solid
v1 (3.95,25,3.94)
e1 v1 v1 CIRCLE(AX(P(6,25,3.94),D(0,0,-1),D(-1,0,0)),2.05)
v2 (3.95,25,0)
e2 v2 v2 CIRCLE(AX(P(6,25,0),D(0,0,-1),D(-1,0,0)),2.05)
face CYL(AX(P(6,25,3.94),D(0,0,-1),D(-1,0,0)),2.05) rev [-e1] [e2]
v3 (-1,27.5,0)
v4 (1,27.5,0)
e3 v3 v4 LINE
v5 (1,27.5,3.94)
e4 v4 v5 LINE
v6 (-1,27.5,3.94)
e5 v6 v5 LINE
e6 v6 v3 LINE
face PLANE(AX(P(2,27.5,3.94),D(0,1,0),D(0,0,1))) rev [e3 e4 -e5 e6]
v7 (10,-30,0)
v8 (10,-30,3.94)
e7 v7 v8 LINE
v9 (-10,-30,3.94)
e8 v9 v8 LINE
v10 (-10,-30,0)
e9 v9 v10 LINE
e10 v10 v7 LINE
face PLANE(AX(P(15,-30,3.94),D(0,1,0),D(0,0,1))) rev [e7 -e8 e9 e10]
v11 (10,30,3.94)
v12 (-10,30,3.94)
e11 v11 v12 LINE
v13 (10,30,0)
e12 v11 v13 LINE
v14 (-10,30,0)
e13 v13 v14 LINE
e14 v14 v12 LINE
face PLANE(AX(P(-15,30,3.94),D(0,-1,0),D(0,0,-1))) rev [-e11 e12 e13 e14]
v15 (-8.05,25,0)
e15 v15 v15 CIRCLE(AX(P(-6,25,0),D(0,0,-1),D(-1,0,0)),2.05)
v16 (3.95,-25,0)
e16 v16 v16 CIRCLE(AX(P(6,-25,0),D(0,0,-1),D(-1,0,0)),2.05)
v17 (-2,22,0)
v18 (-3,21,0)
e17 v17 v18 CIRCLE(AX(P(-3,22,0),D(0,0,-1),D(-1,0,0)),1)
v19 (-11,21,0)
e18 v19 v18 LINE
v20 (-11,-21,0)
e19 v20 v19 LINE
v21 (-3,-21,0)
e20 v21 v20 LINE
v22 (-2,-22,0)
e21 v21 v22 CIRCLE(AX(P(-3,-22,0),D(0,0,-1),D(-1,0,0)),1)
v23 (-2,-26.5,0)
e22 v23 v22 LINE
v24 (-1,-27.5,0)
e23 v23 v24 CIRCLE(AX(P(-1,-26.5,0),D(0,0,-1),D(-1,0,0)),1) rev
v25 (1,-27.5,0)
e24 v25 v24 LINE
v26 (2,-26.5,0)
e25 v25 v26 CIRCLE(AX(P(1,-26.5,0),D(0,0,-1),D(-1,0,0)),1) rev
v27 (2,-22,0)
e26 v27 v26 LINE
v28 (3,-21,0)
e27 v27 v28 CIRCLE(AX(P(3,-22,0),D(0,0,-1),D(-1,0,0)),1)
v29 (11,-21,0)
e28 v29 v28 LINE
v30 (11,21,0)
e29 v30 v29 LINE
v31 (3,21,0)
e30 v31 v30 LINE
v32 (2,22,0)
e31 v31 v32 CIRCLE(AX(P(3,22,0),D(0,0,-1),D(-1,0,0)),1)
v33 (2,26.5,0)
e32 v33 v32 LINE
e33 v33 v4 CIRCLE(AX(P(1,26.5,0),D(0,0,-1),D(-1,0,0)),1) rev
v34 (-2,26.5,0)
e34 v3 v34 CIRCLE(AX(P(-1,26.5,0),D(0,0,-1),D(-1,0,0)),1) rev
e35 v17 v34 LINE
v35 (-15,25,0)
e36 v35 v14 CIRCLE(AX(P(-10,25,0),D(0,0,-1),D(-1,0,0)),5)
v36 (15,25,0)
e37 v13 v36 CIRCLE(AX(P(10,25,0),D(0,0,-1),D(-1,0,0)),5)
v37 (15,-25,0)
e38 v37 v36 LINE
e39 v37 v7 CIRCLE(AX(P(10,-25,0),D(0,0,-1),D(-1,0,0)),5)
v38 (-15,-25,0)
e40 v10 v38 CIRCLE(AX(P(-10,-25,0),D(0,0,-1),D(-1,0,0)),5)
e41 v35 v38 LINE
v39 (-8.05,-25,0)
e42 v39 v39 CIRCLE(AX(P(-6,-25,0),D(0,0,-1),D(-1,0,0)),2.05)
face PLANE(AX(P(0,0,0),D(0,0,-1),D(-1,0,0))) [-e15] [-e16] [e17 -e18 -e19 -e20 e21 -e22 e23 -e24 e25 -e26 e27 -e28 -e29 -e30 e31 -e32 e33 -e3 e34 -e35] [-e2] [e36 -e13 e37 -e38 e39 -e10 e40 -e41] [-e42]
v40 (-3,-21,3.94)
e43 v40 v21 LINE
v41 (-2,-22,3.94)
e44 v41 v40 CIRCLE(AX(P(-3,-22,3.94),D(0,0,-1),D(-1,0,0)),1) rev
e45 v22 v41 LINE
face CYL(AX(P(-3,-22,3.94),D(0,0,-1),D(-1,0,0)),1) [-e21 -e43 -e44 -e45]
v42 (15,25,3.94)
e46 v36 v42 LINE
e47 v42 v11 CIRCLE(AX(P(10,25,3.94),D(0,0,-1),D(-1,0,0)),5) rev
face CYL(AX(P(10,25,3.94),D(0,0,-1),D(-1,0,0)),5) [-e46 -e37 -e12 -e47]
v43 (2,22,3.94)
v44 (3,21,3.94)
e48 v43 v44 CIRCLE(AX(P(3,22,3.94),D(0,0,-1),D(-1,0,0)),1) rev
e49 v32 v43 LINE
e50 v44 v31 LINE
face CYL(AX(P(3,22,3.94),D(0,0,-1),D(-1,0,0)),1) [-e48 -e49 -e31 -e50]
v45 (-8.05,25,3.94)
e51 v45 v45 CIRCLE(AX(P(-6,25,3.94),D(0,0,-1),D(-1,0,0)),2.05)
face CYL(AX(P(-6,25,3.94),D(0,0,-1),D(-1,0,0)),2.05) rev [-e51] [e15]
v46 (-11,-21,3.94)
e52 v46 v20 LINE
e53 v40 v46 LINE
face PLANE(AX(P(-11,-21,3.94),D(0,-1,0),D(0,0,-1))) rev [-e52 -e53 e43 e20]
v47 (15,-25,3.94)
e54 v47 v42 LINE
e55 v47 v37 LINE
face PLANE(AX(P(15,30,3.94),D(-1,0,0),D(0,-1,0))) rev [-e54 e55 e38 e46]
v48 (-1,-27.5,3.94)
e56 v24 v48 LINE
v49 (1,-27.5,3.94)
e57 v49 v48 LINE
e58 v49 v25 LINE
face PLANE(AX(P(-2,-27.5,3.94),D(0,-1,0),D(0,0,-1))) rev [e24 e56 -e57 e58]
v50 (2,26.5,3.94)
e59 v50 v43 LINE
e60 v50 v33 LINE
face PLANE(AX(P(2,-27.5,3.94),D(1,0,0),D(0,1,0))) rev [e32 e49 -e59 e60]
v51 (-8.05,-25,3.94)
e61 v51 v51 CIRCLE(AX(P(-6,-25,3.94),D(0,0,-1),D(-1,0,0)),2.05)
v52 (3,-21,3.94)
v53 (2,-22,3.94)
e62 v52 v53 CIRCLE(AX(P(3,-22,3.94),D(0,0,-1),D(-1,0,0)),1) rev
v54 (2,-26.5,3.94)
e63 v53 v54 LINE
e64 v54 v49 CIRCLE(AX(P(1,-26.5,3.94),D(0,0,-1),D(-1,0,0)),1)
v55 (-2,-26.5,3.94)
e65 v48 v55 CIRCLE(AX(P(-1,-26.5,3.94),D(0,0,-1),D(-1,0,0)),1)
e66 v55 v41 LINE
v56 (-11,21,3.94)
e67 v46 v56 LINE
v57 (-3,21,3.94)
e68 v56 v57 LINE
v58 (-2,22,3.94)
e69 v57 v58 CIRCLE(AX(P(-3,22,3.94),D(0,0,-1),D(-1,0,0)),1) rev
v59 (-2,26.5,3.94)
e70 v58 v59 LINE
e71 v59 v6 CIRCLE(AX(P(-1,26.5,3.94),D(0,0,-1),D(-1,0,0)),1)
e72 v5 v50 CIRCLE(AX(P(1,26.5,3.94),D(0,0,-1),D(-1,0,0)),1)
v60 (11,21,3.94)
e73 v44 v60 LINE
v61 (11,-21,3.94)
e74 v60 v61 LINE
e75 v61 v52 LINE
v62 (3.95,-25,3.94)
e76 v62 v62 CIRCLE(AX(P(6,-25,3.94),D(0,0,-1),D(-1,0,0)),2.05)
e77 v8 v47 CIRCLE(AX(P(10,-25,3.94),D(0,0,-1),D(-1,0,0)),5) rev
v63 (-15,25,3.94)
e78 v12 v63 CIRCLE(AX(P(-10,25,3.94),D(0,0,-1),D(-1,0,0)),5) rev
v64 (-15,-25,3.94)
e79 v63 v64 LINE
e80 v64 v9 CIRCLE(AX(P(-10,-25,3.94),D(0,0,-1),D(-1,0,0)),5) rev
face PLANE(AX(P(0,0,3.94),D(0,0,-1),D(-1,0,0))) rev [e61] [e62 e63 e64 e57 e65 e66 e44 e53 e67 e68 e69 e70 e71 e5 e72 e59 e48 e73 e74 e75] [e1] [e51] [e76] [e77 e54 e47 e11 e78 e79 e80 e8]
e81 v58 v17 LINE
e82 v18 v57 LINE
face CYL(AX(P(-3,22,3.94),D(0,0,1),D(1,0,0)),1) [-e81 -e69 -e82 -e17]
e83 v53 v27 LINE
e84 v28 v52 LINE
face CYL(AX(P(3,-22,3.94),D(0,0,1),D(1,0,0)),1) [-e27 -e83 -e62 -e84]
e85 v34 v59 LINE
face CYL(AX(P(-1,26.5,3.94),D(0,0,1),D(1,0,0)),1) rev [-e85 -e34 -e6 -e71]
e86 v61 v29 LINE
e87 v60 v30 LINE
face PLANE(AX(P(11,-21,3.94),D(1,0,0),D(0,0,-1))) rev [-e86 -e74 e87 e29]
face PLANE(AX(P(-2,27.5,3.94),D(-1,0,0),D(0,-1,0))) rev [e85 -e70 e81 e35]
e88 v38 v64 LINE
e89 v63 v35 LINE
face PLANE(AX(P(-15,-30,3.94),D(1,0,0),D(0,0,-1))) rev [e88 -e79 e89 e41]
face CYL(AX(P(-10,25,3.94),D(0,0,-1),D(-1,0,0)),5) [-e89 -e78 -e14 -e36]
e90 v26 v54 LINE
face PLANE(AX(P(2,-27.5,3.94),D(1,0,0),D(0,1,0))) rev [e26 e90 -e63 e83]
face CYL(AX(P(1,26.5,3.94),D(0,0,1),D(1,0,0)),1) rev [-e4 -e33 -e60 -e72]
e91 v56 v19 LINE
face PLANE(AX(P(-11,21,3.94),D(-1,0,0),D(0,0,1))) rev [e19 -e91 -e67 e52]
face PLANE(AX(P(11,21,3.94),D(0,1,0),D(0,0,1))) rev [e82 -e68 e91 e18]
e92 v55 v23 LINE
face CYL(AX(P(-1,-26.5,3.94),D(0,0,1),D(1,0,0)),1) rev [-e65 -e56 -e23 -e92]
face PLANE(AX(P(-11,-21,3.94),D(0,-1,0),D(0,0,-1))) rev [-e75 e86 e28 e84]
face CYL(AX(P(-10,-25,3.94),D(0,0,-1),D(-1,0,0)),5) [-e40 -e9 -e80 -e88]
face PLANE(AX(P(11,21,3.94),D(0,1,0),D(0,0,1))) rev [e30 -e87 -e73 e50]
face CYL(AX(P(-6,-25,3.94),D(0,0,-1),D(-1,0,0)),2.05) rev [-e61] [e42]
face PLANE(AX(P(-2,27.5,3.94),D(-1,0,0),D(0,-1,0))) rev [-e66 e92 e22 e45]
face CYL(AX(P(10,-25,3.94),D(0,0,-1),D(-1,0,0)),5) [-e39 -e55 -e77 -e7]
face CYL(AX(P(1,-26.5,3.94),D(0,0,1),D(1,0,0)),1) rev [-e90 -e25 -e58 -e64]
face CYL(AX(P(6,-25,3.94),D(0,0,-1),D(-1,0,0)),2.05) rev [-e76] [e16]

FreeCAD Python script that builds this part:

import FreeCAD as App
import Part
import Sketcher
from FreeCAD import Vector
Q = App.Units.Quantity


def edges_at(feature, points):
    """Names of the edges that pass closest to the given points."""
    edges = feature.Shape.Edges
    near = lambda p: min(range(len(edges)), key=lambda i: edges[i].distToShape(Part.Vertex(*p))[0])
    return sorted({f"Edge{near(p) + 1}" for p in points})


def add_polygon(sketch, points):
    """Adds a closed chain of lines whose ends are joined by coincident constraints."""
    first, n = sketch.GeometryCount, len(points)
    for a, b in zip(points, points[1:] + points[:1]):
        sketch.addGeometry(Part.LineSegment(App.Vector(*a, 0), App.Vector(*b, 0)), False)
    for i in range(n):
        sketch.addConstraint(Sketcher.Constraint("Coincident", first + i, 2, first + (i + 1) % n, 1))

doc = App.newDocument("Part")
body = doc.addObject("PartDesign::Body", "Body")

# Sketch on XY plane
sketch1 = body.newObject("Sketcher::SketchObject", "Sketch")
sketch1.AttachmentSupport = (doc.getObject("XY_Plane"), [""])
sketch1.MapMode = "FlatFace"
add_polygon(sketch1, [(-15, 30), (-15, -30), (15, -30), (15, 30)])  # lines 0-3
sketch1.addConstraint([
    Sketcher.Constraint("Vertical", 0),
    Sketcher.Constraint("Horizontal", 1),
    Sketcher.Constraint("Vertical", 2),
    Sketcher.Constraint("Horizontal", 3),
    Sketcher.Constraint("Symmetric", 0, 2, 2, 2, -1, 1),
    Sketcher.Constraint("DistanceX", 1, 1, 1, 2, Q("30 mm")),
    Sketcher.Constraint("DistanceY", 0, 2, 0, 1, Q("60 mm")),
])
pad1 = body.newObject("PartDesign::Pad", "Pad")
pad1.Profile = sketch1
pad1.Length = 3.94

# Sketch on XY plane
sketch2 = body.newObject("Sketcher::SketchObject", "Sketch001")
sketch2.AttachmentSupport = (doc.getObject("XY_Plane"), [""])
sketch2.MapMode = "FlatFace"
add_polygon(sketch2, [(11, 21), (11, -21), (-11, -21), (-11, 21)])  # lines 0-3
sketch2.addConstraint([
    Sketcher.Constraint("Vertical", 0),
    Sketcher.Constraint("Horizontal", 1),
    Sketcher.Constraint("Vertical", 2),
    Sketcher.Constraint("Horizontal", 3),
    Sketcher.Constraint("Symmetric", 0, 2, 2, 2, -1, 1),
    Sketcher.Constraint("DistanceX", 1, 2, 1, 1, Q("22 mm")),
    Sketcher.Constraint("DistanceY", 0, 2, 0, 1, Q("42 mm")),
])
pocket1 = body.newObject("PartDesign::Pocket", "Pocket")
pocket1.Profile = sketch2
pocket1.Type = "ThroughAll"
pocket1.Reversed = True

# Sketch on XY plane
sketch3 = body.newObject("Sketcher::SketchObject", "Sketch002")
sketch3.AttachmentSupport = (doc.getObject("XY_Plane"), [""])
sketch3.MapMode = "FlatFace"
sketch3.addGeometry(Part.Circle(Vector(6, 25, 0), Vector(0, 0, 1), 2), False)  # 0
sketch3.addGeometry(Part.Circle(Vector(-6, 25, 0), Vector(0, 0, 1), 2), False)  # 1
sketch3.addGeometry(Part.Circle(Vector(6, -25, 0), Vector(0, 0, 1), 2), False)  # 2
sketch3.addGeometry(Part.Circle(Vector(-6, -25, 0), Vector(0, 0, 1), 2), False)  # 3
add_polygon(sketch3, [(2, 27.5), (2, -27.5), (-2, -27.5), (-2, 27.5)])  # lines 4-7
sketch3.addConstraint([
    Sketcher.Constraint("Vertical", 4),
    Sketcher.Constraint("Horizontal", 5),
    Sketcher.Constraint("Vertical", 6),
    Sketcher.Constraint("Horizontal", 7),
    Sketcher.Constraint("Equal", 0, 1),
    Sketcher.Constraint("Equal", 1, 2),
    Sketcher.Constraint("Equal", 2, 3),
    Sketcher.Constraint("Symmetric", 1, 3, 2, 3, -1, 1),
    Sketcher.Constraint("Symmetric", 0, 3, 3, 3, -1, 1),
    Sketcher.Constraint("Symmetric", 4, 2, 6, 2, -1, 1),
    Sketcher.Constraint("Symmetric", 0, 3, 1, 3, -2),
    Sketcher.Constraint("Diameter", 0, Q("4.1 mm")),
    Sketcher.Constraint("DistanceX", 5, 2, 5, 1, Q("4 mm")),
    Sketcher.Constraint("DistanceY", 4, 2, 4, 1, Q("55 mm")),
    Sketcher.Constraint("DistanceX", -1, 1, 0, 3, Q("6 mm")),
    Sketcher.Constraint("DistanceY", -1, 1, 0, 3, Q("25 mm")),
])
pocket2 = body.newObject("PartDesign::Pocket", "Pocket001")
pocket2.Profile = sketch3
pocket2.Type = "ThroughAll"
pocket2.Reversed = True
doc.recompute()

fillet = body.newObject("PartDesign::Fillet", "Fillet")
fillet.Base = (pocket2, edges_at(pocket2, [
    (-15, 30, 1.97),
    (15, 30, 1.97),
    (15, -30, 1.97),
    (-15, -30, 1.97),
]))
fillet.Radius = 5
doc.recompute()

fillet2 = body.newObject("PartDesign::Fillet", "Fillet001")
fillet2.Base = (fillet, edges_at(fillet, [
    (2, -21, 1.97),
    (-2, -21, 1.97),
    (-2, 21, 1.97),
    (-2, 27.5, 1.97),
    (2, 21, 1.97),
    (2, -27.5, 1.97),
    (-2, -27.5, 1.97),
    (2, 27.5, 1.97),
]))
fillet2.Radius = 1

doc.recompute()
